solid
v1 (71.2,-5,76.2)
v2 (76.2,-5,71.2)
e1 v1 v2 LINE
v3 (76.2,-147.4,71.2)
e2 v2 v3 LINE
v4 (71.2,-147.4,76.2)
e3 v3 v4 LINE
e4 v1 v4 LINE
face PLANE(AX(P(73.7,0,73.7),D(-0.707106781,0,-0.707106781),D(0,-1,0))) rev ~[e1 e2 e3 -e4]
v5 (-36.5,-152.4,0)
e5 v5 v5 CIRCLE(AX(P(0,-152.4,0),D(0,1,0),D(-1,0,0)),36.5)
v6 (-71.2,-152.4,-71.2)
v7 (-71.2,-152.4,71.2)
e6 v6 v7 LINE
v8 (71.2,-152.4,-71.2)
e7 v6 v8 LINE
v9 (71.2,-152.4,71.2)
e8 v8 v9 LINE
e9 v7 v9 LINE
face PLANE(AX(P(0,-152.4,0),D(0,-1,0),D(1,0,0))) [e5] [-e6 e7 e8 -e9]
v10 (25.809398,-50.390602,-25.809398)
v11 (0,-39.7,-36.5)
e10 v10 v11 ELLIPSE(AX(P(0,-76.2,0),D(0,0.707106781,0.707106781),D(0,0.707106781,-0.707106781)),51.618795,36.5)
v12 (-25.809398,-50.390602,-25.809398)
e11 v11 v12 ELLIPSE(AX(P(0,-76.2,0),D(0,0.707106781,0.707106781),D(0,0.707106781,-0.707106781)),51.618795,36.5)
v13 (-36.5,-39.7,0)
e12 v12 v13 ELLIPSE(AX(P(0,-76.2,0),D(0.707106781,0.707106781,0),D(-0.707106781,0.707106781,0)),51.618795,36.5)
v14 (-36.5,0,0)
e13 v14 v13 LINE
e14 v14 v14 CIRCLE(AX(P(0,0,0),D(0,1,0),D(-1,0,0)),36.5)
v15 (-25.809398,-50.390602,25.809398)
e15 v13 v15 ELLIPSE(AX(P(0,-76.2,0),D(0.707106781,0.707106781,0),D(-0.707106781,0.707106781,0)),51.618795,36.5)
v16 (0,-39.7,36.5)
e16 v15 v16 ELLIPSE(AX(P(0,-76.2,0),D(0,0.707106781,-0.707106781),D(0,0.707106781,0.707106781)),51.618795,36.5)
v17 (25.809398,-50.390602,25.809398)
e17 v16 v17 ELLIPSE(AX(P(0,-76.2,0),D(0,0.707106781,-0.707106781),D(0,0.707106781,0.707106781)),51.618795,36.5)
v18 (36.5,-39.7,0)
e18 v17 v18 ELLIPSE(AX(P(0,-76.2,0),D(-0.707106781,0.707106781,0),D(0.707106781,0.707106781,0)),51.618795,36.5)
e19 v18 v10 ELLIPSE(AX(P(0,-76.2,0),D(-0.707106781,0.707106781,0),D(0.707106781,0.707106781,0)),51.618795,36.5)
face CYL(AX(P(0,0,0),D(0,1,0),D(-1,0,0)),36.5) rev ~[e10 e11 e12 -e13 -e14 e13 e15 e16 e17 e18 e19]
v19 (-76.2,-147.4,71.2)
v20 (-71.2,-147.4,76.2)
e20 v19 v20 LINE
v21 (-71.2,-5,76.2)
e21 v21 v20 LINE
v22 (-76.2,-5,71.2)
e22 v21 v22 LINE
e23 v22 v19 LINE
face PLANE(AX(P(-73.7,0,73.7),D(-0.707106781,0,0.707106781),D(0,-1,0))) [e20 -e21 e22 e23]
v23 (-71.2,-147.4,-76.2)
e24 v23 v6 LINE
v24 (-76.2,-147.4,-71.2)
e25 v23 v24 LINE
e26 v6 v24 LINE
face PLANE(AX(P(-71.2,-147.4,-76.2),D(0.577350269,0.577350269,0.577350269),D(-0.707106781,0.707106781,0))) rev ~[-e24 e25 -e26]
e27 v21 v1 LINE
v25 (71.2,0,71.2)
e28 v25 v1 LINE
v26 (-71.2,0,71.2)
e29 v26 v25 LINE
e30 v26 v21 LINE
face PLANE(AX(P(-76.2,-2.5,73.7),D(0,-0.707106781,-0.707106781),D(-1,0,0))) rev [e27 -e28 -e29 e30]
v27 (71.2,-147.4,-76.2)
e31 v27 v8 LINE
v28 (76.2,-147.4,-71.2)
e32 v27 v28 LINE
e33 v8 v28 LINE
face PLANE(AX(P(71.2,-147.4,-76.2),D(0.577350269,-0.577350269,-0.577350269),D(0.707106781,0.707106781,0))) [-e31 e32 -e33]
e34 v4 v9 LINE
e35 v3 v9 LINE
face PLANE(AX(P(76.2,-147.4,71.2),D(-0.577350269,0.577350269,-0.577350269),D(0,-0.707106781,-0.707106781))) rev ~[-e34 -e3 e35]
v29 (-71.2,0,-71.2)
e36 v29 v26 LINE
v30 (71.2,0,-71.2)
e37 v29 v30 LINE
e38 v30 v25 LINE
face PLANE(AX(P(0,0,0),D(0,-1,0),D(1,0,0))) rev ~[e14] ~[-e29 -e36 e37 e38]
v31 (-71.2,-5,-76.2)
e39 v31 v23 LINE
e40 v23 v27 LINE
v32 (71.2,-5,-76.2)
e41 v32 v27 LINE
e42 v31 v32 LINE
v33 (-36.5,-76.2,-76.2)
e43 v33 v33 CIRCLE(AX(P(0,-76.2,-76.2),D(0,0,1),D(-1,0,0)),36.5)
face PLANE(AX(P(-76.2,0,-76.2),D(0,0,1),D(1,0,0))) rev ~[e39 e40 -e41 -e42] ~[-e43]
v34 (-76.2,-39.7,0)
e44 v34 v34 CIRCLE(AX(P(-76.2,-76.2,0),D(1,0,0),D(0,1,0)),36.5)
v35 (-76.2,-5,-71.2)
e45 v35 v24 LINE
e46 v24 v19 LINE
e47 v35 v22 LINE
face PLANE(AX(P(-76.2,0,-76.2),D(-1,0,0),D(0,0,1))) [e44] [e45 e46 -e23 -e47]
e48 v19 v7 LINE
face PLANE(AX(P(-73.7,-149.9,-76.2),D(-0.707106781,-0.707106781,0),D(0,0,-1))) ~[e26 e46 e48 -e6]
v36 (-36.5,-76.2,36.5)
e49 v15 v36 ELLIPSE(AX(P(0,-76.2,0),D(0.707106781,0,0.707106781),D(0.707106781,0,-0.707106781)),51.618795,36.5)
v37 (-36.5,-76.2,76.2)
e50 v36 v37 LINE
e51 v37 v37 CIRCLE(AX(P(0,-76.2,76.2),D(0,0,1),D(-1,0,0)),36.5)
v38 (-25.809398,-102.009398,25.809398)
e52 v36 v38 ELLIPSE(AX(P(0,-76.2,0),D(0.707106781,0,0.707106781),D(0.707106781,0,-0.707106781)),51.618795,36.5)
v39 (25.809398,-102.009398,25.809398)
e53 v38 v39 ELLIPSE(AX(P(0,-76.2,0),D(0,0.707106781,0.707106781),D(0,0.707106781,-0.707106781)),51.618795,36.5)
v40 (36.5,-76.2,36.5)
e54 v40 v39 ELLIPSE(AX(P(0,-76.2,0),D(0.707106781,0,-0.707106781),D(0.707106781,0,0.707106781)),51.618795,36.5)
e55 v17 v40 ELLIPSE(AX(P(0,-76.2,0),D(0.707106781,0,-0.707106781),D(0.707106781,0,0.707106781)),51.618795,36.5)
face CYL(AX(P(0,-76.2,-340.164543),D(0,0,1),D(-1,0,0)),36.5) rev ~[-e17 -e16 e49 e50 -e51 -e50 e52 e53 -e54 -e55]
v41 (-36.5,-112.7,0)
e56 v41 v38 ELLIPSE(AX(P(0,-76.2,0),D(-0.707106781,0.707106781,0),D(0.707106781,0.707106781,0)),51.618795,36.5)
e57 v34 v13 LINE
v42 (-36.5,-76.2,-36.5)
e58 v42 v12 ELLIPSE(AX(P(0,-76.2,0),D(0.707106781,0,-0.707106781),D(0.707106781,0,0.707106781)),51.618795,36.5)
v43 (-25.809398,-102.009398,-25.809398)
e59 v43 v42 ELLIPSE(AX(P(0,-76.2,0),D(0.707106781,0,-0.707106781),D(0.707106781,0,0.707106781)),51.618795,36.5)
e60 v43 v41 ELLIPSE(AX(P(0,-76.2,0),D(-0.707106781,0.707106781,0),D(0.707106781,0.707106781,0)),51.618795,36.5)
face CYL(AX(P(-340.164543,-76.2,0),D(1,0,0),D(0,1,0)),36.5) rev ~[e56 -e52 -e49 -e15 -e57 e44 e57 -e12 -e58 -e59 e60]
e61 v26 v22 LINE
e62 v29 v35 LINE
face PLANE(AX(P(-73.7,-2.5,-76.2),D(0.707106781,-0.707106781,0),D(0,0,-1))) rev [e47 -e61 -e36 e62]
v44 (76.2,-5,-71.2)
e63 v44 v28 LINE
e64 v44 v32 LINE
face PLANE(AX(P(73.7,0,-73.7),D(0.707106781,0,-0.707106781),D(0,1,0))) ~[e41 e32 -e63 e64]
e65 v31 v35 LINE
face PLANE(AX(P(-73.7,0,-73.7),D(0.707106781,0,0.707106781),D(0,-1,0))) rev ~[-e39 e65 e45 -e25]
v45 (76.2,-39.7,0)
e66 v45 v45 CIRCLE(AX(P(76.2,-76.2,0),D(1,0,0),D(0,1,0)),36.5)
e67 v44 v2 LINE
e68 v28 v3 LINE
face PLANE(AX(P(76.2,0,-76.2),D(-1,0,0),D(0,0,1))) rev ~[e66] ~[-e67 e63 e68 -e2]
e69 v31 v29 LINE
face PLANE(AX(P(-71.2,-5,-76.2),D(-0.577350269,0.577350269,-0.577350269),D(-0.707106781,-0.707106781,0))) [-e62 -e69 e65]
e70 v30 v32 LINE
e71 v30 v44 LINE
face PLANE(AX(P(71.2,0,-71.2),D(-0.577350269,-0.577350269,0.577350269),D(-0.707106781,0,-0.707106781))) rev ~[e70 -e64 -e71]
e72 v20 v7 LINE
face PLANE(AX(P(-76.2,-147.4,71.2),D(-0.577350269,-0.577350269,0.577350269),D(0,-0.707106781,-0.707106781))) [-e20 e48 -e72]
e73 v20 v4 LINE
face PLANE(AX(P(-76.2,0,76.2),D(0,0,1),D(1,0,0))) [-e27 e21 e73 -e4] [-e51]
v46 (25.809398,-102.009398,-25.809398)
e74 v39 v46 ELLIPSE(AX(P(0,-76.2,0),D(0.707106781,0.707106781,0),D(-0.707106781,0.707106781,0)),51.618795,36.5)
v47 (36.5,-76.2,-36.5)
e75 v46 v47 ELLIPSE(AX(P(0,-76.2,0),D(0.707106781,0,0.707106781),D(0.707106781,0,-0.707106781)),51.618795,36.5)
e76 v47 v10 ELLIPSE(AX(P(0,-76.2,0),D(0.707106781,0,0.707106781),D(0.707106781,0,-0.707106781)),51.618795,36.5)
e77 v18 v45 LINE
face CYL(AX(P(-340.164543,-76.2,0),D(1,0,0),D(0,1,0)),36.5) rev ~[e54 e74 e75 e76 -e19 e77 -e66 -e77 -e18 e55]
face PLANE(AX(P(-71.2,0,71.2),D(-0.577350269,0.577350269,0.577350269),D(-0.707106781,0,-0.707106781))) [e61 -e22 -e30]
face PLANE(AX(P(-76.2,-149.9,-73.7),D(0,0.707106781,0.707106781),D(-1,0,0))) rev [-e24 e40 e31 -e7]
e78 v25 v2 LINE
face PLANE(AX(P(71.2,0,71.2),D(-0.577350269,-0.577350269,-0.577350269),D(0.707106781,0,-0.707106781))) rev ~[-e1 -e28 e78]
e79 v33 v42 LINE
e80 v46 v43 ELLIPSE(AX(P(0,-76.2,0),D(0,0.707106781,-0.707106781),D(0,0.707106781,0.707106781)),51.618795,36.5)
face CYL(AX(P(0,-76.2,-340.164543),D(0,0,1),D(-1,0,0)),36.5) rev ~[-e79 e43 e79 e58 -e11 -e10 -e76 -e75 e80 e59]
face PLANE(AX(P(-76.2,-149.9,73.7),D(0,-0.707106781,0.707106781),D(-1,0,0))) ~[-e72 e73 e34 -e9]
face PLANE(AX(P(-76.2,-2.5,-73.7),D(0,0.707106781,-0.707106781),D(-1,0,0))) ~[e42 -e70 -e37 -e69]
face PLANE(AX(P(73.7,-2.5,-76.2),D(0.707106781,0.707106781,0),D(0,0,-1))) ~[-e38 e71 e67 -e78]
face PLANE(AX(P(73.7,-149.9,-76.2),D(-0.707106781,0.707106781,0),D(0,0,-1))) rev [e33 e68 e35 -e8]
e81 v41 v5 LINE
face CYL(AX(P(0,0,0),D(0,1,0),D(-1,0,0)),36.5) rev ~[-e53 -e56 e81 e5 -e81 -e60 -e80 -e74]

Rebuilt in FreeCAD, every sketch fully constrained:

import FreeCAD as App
import Part
import Sketcher
from FreeCAD import Vector
Q = App.Units.Quantity

doc = App.newDocument("Part")
body = doc.addObject("PartDesign::Body", "Body")

sketch1 = body.newObject("Sketcher::SketchObject", "Sketch")
sketch1.AttachmentSupport = (doc.getObject("XZ_Plane"), [""])
sketch1.MapMode = "FlatFace"
sketch1.addGeometry(Part.LineSegment(Vector(-76.2, 76.2, 0), Vector(-76.2, -76.2, 0)), False)
sketch1.addGeometry(Part.LineSegment(Vector(-76.2, -76.2, 0), Vector(76.2, -76.2, 0)), False)
sketch1.addGeometry(Part.LineSegment(Vector(76.2, -76.2, 0), Vector(76.2, 76.2, 0)), False)
sketch1.addGeometry(Part.LineSegment(Vector(76.2, 76.2, 0), Vector(-76.2, 76.2, 0)), False)
sketch1.addConstraint(Sketcher.Constraint("Coincident", 0, 2, 1, 1))
sketch1.addConstraint(Sketcher.Constraint("Coincident", 1, 2, 2, 1))
sketch1.addConstraint(Sketcher.Constraint("Coincident", 2, 2, 3, 1))
sketch1.addConstraint(Sketcher.Constraint("Coincident", 3, 2, 0, 1))
sketch1.addConstraint(Sketcher.Constraint("Vertical", 0))
sketch1.addConstraint(Sketcher.Constraint("Horizontal", 1))
sketch1.addConstraint(Sketcher.Constraint("Vertical", 2))
sketch1.addConstraint(Sketcher.Constraint("Horizontal", 3))
sketch1.addConstraint(Sketcher.Constraint("Symmetric", 0, 2, 2, 2, -1, 1))
sketch1.addConstraint(Sketcher.Constraint("Equal", 3, 0))
sketch1.addConstraint(Sketcher.Constraint("DistanceX", 1, 1, 1, 2, Q("152.4 mm")))
pad1 = body.newObject("PartDesign::Pad", "Pad")
pad1.Profile = sketch1
pad1.Length = 152.4
doc.recompute()

chamfer = body.newObject("PartDesign::Chamfer", "Chamfer")
chamfer.Base = (pad1, ["Edge1"])
chamfer.UseAllEdges = True
chamfer.Size = 5

sketch2 = body.newObject("Sketcher::SketchObject", "Sketch001")
sketch2.AttachmentSupport = (doc.getObject("XZ_Plane"), [""])
sketch2.MapMode = "FlatFace"
sketch2.addGeometry(Part.Circle(Vector(0, 0, 0), Vector(0, 0, 1), 36.5), False)
sketch2.addConstraint(Sketcher.Constraint("Coincident", 0, 3, -1, 1))
sketch2.addConstraint(Sketcher.Constraint("Diameter", 0, Q("73 mm")))
pocket1 = body.newObject("PartDesign::Pocket", "Pocket")
pocket1.Profile = sketch2
pocket1.Type = "ThroughAll"
pocket1.Reversed = True

sketch3 = body.newObject("Sketcher::SketchObject", "Sketch002")
sketch3.AttachmentSupport = (doc.getObject("YZ_Plane"), [""])
sketch3.MapMode = "FlatFace"
sketch3.AttachmentOffset = App.Placement(Vector(0, 0, -76.2), App.Rotation())
sketch3.addGeometry(Part.Circle(Vector(-76.2, 0, 0), Vector(0, 0, 1), 36.5), False)
sketch3.addConstraint(Sketcher.Constraint("PointOnObject", 0, 3, -1))
sketch3.addConstraint(Sketcher.Constraint("Diameter", 0, Q("73 mm")))
sketch3.addConstraint(Sketcher.Constraint("DistanceX", 0, 3, -1, 1, Q("76.2 mm")))
doc.recompute()
hole = body.newObject("PartDesign::Hole", "Hole")
hole.Profile = sketch3
hole.ThreadType = "None"
hole.Diameter = 73
hole.DepthType = "ThroughAll"
hole.Reversed = True

sketch4 = body.newObject("Sketcher::SketchObject", "Sketch003")
sketch4.AttachmentSupport = (doc.getObject("XY_Plane"), [""])
sketch4.MapMode = "FlatFace"
sketch4.AttachmentOffset = App.Placement(Vector(0, 0, -76.2), App.Rotation())
sketch4.addGeometry(Part.Circle(Vector(0, -76.2, 0), Vector(0, 0, 1), 36.5), False)
sketch4.addConstraint(Sketcher.Constraint("PointOnObject", 0, 3, -2))
sketch4.addConstraint(Sketcher.Constraint("Diameter", 0, Q("73 mm")))
sketch4.addConstraint(Sketcher.Constraint("DistanceY", 0, 3, -1, 1, Q("76.2 mm")))
doc.recompute()
hole2 = body.newObject("PartDesign::Hole", "Hole001")
hole2.Profile = sketch4
hole2.ThreadType = "None"
hole2.Diameter = 73
hole2.DepthType = "ThroughAll"
hole2.Reversed = True

doc.recompute()
